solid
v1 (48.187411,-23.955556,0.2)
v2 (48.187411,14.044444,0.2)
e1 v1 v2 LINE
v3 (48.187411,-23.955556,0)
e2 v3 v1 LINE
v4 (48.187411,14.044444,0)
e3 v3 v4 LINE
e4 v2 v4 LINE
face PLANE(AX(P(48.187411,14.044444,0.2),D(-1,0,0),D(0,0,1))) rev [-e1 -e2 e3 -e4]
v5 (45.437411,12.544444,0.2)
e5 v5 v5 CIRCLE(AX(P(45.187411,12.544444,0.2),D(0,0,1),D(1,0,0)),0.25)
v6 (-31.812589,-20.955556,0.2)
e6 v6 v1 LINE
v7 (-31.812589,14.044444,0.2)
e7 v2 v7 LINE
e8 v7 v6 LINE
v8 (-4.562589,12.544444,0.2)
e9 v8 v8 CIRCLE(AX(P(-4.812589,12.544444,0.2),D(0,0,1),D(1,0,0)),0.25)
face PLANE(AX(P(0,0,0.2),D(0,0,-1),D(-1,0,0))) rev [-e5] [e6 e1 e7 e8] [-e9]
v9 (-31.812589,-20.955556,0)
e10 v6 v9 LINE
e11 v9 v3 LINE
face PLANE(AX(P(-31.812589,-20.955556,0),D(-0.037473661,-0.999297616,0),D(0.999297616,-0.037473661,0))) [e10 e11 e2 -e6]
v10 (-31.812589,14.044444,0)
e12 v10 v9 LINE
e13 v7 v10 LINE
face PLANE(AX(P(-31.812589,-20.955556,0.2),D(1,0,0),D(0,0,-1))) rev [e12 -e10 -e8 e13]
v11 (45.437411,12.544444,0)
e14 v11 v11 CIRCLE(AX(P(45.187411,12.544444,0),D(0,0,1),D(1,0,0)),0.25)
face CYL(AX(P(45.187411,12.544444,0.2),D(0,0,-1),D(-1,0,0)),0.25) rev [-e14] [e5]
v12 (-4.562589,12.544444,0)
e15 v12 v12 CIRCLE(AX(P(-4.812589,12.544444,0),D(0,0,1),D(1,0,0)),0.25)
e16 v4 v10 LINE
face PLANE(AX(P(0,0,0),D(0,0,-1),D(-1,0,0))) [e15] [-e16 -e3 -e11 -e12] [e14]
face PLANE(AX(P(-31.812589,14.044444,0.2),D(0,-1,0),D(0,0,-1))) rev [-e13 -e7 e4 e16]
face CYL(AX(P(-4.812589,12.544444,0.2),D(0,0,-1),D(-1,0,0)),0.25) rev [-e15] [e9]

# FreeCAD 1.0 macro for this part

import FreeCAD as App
import Part
import Sketcher


def add_polygon(sketch, points):
    """Adds a closed chain of lines whose ends are joined by coincident constraints."""
    first, n = sketch.GeometryCount, len(points)
    for a, b in zip(points, points[1:] + points[:1]):
        sketch.addGeometry(Part.LineSegment(App.Vector(*a, 0), App.Vector(*b, 0)), False)
    for i in range(n):
        sketch.addConstraint(Sketcher.Constraint("Coincident", first + i, 2, first + (i + 1) % n, 1))

doc = App.newDocument("Part")
body = doc.addObject("PartDesign::Body", "Body")

sketch1 = body.newObject("Sketcher::SketchObject", "Sketch")
sketch1.AttachmentSupport = (doc.getObject("XY_Plane"), [""])
sketch1.MapMode = "FlatFace"
add_polygon(sketch1, [(-31.812589, 14.044444), (-31.812589, -20.955556), (48.187411, -20.955556), (48.187411, 14.044444)])
sketch1.addGeometry(Part.Circle(App.Vector(-4.812589, 12.544444, 0), App.Vector(0, 0, 1), 0.25), False)
sketch1.addGeometry(Part.Circle(App.Vector(45.187411, 12.544444, 0), App.Vector(0, 0, 1), 0.25), False)
sketch1.addConstraint([
    Sketcher.Constraint("Vertical", 0),
    Sketcher.Constraint("Horizontal", 1),
    Sketcher.Constraint("Vertical", 2),
    Sketcher.Constraint("Horizontal", 3),
    Sketcher.Constraint("Equal", 4, 5),
    Sketcher.Constraint("Horizontal", 4, 3, 5, 3),
    Sketcher.Constraint("Diameter", 4, 0.5),
    Sketcher.Constraint("DistanceX", 1, 1, 1, 2, 80.0),
    Sketcher.Constraint("DistanceY", 0, 2, 0, 1, 35.0),
    Sketcher.Constraint("DistanceX", 4, 3, 5, 3, 50.0),
    Sketcher.Constraint("DistanceX", 0, 2, 4, 3, 27.0),
    Sketcher.Constraint("DistanceY", 0, 2, 4, 3, 33.5),
    Sketcher.Constraint("DistanceX", 4, 3, -1, 1, 4.812589),
    Sketcher.Constraint("DistanceY", -1, 1, 4, 3, 12.544444),
])
pad1 = body.newObject("PartDesign::Pad", "Pad")
pad1.Profile = sketch1
pad1.Length = 0.2

sketch2 = body.newObject("Sketcher::SketchObject", "Sketch001")
sketch2.AttachmentSupport = (doc.getObject("XY_Plane"), [""])
sketch2.MapMode = "FlatFace"
sketch2.AttachmentOffset = App.Placement(App.Vector(0, 0, 0.2), App.Rotation())
add_polygon(sketch2, [(-31.812589, -20.955556), (48.187411, -23.955556), (48.187411, -20.955556)])
sketch2.addConstraint([
    Sketcher.Constraint("Vertical", 1),
    Sketcher.Constraint("Horizontal", 2),
    Sketcher.Constraint("DistanceX", 2, 2, 2, 1, 80.0),
    Sketcher.Constraint("DistanceY", 1, 1, 1, 2, 3.0),
    Sketcher.Constraint("DistanceX", -1, 1, 0, 2, 48.187411),
    Sketcher.Constraint("DistanceY", 0, 2, -1, 1, 23.955556),
])
pad2 = body.newObject("PartDesign::Pad", "Pad001")
pad2.Profile = sketch2
pad2.Length = 0.2
pad2.Reversed = True

doc.recompute()
